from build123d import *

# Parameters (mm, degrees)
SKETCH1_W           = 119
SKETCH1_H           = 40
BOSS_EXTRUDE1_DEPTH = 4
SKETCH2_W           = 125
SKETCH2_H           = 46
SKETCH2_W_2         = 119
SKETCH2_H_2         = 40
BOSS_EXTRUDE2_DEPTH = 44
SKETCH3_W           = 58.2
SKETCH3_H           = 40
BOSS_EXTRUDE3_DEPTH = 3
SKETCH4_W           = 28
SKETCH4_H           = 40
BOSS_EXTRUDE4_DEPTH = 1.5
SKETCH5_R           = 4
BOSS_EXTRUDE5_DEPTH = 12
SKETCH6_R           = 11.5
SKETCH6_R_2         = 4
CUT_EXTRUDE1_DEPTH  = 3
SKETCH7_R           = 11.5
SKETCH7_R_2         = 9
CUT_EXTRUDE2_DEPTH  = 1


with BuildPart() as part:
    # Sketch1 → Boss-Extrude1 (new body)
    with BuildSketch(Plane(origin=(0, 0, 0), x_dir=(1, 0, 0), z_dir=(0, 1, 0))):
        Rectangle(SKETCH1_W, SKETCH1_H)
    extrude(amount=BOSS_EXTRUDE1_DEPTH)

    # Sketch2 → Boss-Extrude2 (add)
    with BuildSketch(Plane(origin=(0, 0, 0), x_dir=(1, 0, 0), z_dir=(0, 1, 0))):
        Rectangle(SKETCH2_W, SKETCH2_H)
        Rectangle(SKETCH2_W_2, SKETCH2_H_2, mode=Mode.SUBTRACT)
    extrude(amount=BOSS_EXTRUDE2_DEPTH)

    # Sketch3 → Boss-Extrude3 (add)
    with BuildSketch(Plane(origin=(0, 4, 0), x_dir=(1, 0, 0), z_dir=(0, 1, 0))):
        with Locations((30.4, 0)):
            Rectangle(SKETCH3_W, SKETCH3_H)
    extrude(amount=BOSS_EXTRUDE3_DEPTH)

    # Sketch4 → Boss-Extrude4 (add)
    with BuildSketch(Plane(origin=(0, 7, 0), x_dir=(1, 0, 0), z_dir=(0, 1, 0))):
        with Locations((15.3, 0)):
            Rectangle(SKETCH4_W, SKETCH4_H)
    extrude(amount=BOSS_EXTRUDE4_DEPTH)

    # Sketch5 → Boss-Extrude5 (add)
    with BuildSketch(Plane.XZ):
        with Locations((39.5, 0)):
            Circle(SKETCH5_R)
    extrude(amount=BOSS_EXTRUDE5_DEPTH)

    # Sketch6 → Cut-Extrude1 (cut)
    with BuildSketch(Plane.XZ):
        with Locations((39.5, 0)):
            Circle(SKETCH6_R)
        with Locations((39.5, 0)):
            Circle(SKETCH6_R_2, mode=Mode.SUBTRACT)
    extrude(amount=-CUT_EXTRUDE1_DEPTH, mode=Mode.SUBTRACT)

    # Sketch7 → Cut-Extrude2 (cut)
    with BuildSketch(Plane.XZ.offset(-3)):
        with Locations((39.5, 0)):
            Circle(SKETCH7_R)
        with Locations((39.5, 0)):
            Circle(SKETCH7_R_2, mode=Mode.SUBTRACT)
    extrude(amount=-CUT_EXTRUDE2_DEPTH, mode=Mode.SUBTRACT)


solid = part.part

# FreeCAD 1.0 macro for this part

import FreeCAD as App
import Part
import Sketcher

doc = App.newDocument("Part")
body = doc.addObject("PartDesign::Body", "Body")

# Sketch on XZ plane
sketch1 = body.newObject("Sketcher::SketchObject", "Sketch")
sketch1.AttachmentSupport = (doc.getObject("XZ_Plane"), [""])
sketch1.MapMode = "FlatFace"
sketch1.addGeometry([
    Part.LineSegment(App.Vector(-59.5, -20, 0), App.Vector(-59.5, 20, 0)),
    Part.LineSegment(App.Vector(-59.5, 20, 0), App.Vector(59.5, 20, 0)),
    Part.LineSegment(App.Vector(59.5, 20, 0), App.Vector(59.5, -20, 0)),
    Part.LineSegment(App.Vector(59.5, -20, 0), App.Vector(-59.5, -20, 0)),
], False)
sketch1.addConstraint([
    Sketcher.Constraint("Coincident", 0, 2, 1, 1),
    Sketcher.Constraint("Coincident", 1, 2, 2, 1),
    Sketcher.Constraint("Coincident", 2, 2, 3, 1),
    Sketcher.Constraint("Coincident", 3, 2, 0, 1),
    Sketcher.Constraint("Vertical", 0),
    Sketcher.Constraint("Horizontal", 1),
    Sketcher.Constraint("Vertical", 2),
    Sketcher.Constraint("Horizontal", 3),
    Sketcher.Constraint("Symmetric", 0, 2, 2, 2, -1, 1),
    Sketcher.Constraint("DistanceX", 1, 1, 1, 2, 119.0),
    Sketcher.Constraint("DistanceY", 0, 1, 0, 2, 40.0),
])
pad1 = body.newObject("PartDesign::Pad", "Pad")
pad1.Profile = sketch1
pad1.Length = 4
pad1.Reversed = True

# Sketch on XZ plane
sketch2 = body.newObject("Sketcher::SketchObject", "Sketch001")
sketch2.AttachmentSupport = (doc.getObject("XZ_Plane"), [""])
sketch2.MapMode = "FlatFace"
sketch2.addGeometry([
    Part.LineSegment(App.Vector(-62.5, -23, 0), App.Vector(-62.5, 23, 0)),  # 0
    Part.LineSegment(App.Vector(-62.5, 23, 0), App.Vector(62.5, 23, 0)),  # 1
    Part.LineSegment(App.Vector(62.5, 23, 0), App.Vector(62.5, -23, 0)),  # 2
    Part.LineSegment(App.Vector(62.5, -23, 0), App.Vector(-62.5, -23, 0)),  # 3
    Part.LineSegment(App.Vector(59.5, 20, 0), App.Vector(-59.5, 20, 0)),  # 4
    Part.LineSegment(App.Vector(-59.5, 20, 0), App.Vector(-59.5, -20, 0)),  # 5
    Part.LineSegment(App.Vector(-59.5, -20, 0), App.Vector(59.5, -20, 0)),  # 6
    Part.LineSegment(App.Vector(59.5, -20, 0), App.Vector(59.5, 20, 0)),  # 7
], False)
sketch2.addConstraint([
    Sketcher.Constraint("Coincident", 0, 2, 1, 1),
    Sketcher.Constraint("Coincident", 1, 2, 2, 1),
    Sketcher.Constraint("Coincident", 2, 2, 3, 1),
    Sketcher.Constraint("Coincident", 3, 2, 0, 1),
    Sketcher.Constraint("Coincident", 4, 2, 5, 1),
    Sketcher.Constraint("Coincident", 5, 2, 6, 1),
    Sketcher.Constraint("Coincident", 6, 2, 7, 1),
    Sketcher.Constraint("Coincident", 7, 2, 4, 1),
    Sketcher.Constraint("Vertical", 0),
    Sketcher.Constraint("Horizontal", 1),
    Sketcher.Constraint("Vertical", 2),
    Sketcher.Constraint("Horizontal", 3),
    Sketcher.Constraint("Horizontal", 4),
    Sketcher.Constraint("Vertical", 5),
    Sketcher.Constraint("Horizontal", 6),
    Sketcher.Constraint("Vertical", 7),
    Sketcher.Constraint("Symmetric", 0, 2, 2, 2, -1, 1),
    Sketcher.Constraint("Symmetric", 4, 2, 6, 2, -1, 1),
    Sketcher.Constraint("DistanceX", 1, 1, 1, 2, 125.0),
    Sketcher.Constraint("DistanceX", 4, 2, 4, 1, 119.0),
    Sketcher.Constraint("DistanceY", 0, 1, 0, 2, 46.0),
    Sketcher.Constraint("DistanceY", 5, 2, 5, 1, 40.0),
])
pad2 = body.newObject("PartDesign::Pad", "Pad001")
pad2.Profile = sketch2
pad2.Length = 44
pad2.Reversed = True

# Sketch on XZ plane
sketch3 = body.newObject("Sketcher::SketchObject", "Sketch002")
sketch3.AttachmentSupport = (doc.getObject("XZ_Plane"), [""])
sketch3.MapMode = "FlatFace"
sketch3.AttachmentOffset = App.Placement(App.Vector(0, 0, -4), App.Rotation())
sketch3.addGeometry([
    Part.LineSegment(App.Vector(1.3, -20, 0), App.Vector(1.3, 20, 0)),
    Part.LineSegment(App.Vector(1.3, 20, 0), App.Vector(59.5, 20, 0)),
    Part.LineSegment(App.Vector(59.5, 20, 0), App.Vector(59.5, -20, 0)),
    Part.LineSegment(App.Vector(59.5, -20, 0), App.Vector(1.3, -20, 0)),
], False)
sketch3.addConstraint([
    Sketcher.Constraint("Coincident", 0, 2, 1, 1),
    Sketcher.Constraint("Coincident", 1, 2, 2, 1),
    Sketcher.Constraint("Coincident", 2, 2, 3, 1),
    Sketcher.Constraint("Coincident", 3, 2, 0, 1),
    Sketcher.Constraint("Vertical", 0),
    Sketcher.Constraint("Horizontal", 1),
    Sketcher.Constraint("Vertical", 2),
    Sketcher.Constraint("Horizontal", 3),
    Sketcher.Constraint("DistanceY", 0, 1, 0, 2, 40.0),
    Sketcher.Constraint("DistanceX", 1, 1, 1, 2, 58.2),
    Sketcher.Constraint("DistanceY", -1, 1, 0, 2, 20.0),
    Sketcher.Constraint("DistanceX", -1, 1, 0, 2, 1.3),
])
pad3 = body.newObject("PartDesign::Pad", "Pad002")
pad3.Profile = sketch3
pad3.Length = 3
pad3.Reversed = True

# Sketch on XZ plane
sketch4 = body.newObject("Sketcher::SketchObject", "Sketch003")
sketch4.AttachmentSupport = (doc.getObject("XZ_Plane"), [""])
sketch4.MapMode = "FlatFace"
sketch4.AttachmentOffset = App.Placement(App.Vector(0, 0, -7), App.Rotation())
sketch4.addGeometry([
    Part.LineSegment(App.Vector(1.3, -20, 0), App.Vector(1.3, 20, 0)),
    Part.LineSegment(App.Vector(1.3, 20, 0), App.Vector(29.3, 20, 0)),
    Part.LineSegment(App.Vector(29.3, 20, 0), App.Vector(29.3, -20, 0)),
    Part.LineSegment(App.Vector(29.3, -20, 0), App.Vector(1.3, -20, 0)),
], False)
sketch4.addConstraint([
    Sketcher.Constraint("Coincident", 0, 2, 1, 1),
    Sketcher.Constraint("Coincident", 1, 2, 2, 1),
    Sketcher.Constraint("Coincident", 2, 2, 3, 1),
    Sketcher.Constraint("Coincident", 3, 2, 0, 1),
    Sketcher.Constraint("Vertical", 0),
    Sketcher.Constraint("Horizontal", 1),
    Sketcher.Constraint("Vertical", 2),
    Sketcher.Constraint("Horizontal", 3),
    Sketcher.Constraint("DistanceX", 1, 1, 1, 2, 28.0),
    Sketcher.Constraint("DistanceY", 0, 1, 0, 2, 40.0),
    Sketcher.Constraint("DistanceY", -1, 1, 0, 2, 20.0),
    Sketcher.Constraint("DistanceX", -1, 1, 0, 2, 1.3),
])
pad4 = body.newObject("PartDesign::Pad", "Pad003")
pad4.Profile = sketch4
pad4.Length = 1.5
pad4.Reversed = True

# Sketch on XZ plane
sketch5 = body.newObject("Sketcher::SketchObject", "Sketch004")
sketch5.AttachmentSupport = (doc.getObject("XZ_Plane"), [""])
sketch5.MapMode = "FlatFace"
sketch5.addGeometry(Part.Circle(App.Vector(39.5, 0, 0), App.Vector(0, 0, 1), 4), False)
sketch5.addConstraint([
    Sketcher.Constraint("PointOnObject", 0, 3, -1),
    Sketcher.Constraint("Diameter", 0, 8.0),
    Sketcher.Constraint("DistanceX", -1, 1, 0, 3, 39.5),
])
pad5 = body.newObject("PartDesign::Pad", "Pad004")
pad5.Profile = sketch5
pad5.Length = 12

# Sketch on XZ plane
sketch6 = body.newObject("Sketcher::SketchObject", "Sketch005")
sketch6.AttachmentSupport = (doc.getObject("XZ_Plane"), [""])
sketch6.MapMode = "FlatFace"
sketch6.addGeometry([
    Part.Circle(App.Vector(39.5, 0, 0), App.Vector(0, 0, 1), 11.5),
    Part.Circle(App.Vector(39.5, 0, 0), App.Vector(0, 0, 1), 4),
], False)
sketch6.addConstraint([
    Sketcher.Constraint("Coincident", 1, 3, 0, 3),
    Sketcher.Constraint("PointOnObject", 0, 3, -1),
    Sketcher.Constraint("Diameter", 0, 23.0),
    Sketcher.Constraint("Diameter", 1, 8.0),
    Sketcher.Constraint("DistanceX", -1, 1, 0, 3, 39.5),
])
pocket1 = body.newObject("PartDesign::Pocket", "Pocket")
pocket1.Profile = sketch6
pocket1.Length = 3

# Sketch on XZ plane
sketch7 = body.newObject("Sketcher::SketchObject", "Sketch006")
sketch7.AttachmentSupport = (doc.getObject("XZ_Plane"), [""])
sketch7.MapMode = "FlatFace"
sketch7.AttachmentOffset = App.Placement(App.Vector(0, 0, -3), App.Rotation())
sketch7.addGeometry([
    Part.Circle(App.Vector(39.5, 0, 0), App.Vector(0, 0, 1), 11.5),
    Part.Circle(App.Vector(39.5, 0, 0), App.Vector(0, 0, 1), 9),
], False)
sketch7.addConstraint([
    Sketcher.Constraint("Coincident", 1, 3, 0, 3),
    Sketcher.Constraint("PointOnObject", 0, 3, -1),
    Sketcher.Constraint("Diameter", 0, 23.0),
    Sketcher.Constraint("Diameter", 1, 18.0),
    Sketcher.Constraint("DistanceX", -1, 1, 0, 3, 39.5),
])
pocket2 = body.newObject("PartDesign::Pocket", "Pocket001")
pocket2.Profile = sketch7
pocket2.Length = 1

doc.recompute()
